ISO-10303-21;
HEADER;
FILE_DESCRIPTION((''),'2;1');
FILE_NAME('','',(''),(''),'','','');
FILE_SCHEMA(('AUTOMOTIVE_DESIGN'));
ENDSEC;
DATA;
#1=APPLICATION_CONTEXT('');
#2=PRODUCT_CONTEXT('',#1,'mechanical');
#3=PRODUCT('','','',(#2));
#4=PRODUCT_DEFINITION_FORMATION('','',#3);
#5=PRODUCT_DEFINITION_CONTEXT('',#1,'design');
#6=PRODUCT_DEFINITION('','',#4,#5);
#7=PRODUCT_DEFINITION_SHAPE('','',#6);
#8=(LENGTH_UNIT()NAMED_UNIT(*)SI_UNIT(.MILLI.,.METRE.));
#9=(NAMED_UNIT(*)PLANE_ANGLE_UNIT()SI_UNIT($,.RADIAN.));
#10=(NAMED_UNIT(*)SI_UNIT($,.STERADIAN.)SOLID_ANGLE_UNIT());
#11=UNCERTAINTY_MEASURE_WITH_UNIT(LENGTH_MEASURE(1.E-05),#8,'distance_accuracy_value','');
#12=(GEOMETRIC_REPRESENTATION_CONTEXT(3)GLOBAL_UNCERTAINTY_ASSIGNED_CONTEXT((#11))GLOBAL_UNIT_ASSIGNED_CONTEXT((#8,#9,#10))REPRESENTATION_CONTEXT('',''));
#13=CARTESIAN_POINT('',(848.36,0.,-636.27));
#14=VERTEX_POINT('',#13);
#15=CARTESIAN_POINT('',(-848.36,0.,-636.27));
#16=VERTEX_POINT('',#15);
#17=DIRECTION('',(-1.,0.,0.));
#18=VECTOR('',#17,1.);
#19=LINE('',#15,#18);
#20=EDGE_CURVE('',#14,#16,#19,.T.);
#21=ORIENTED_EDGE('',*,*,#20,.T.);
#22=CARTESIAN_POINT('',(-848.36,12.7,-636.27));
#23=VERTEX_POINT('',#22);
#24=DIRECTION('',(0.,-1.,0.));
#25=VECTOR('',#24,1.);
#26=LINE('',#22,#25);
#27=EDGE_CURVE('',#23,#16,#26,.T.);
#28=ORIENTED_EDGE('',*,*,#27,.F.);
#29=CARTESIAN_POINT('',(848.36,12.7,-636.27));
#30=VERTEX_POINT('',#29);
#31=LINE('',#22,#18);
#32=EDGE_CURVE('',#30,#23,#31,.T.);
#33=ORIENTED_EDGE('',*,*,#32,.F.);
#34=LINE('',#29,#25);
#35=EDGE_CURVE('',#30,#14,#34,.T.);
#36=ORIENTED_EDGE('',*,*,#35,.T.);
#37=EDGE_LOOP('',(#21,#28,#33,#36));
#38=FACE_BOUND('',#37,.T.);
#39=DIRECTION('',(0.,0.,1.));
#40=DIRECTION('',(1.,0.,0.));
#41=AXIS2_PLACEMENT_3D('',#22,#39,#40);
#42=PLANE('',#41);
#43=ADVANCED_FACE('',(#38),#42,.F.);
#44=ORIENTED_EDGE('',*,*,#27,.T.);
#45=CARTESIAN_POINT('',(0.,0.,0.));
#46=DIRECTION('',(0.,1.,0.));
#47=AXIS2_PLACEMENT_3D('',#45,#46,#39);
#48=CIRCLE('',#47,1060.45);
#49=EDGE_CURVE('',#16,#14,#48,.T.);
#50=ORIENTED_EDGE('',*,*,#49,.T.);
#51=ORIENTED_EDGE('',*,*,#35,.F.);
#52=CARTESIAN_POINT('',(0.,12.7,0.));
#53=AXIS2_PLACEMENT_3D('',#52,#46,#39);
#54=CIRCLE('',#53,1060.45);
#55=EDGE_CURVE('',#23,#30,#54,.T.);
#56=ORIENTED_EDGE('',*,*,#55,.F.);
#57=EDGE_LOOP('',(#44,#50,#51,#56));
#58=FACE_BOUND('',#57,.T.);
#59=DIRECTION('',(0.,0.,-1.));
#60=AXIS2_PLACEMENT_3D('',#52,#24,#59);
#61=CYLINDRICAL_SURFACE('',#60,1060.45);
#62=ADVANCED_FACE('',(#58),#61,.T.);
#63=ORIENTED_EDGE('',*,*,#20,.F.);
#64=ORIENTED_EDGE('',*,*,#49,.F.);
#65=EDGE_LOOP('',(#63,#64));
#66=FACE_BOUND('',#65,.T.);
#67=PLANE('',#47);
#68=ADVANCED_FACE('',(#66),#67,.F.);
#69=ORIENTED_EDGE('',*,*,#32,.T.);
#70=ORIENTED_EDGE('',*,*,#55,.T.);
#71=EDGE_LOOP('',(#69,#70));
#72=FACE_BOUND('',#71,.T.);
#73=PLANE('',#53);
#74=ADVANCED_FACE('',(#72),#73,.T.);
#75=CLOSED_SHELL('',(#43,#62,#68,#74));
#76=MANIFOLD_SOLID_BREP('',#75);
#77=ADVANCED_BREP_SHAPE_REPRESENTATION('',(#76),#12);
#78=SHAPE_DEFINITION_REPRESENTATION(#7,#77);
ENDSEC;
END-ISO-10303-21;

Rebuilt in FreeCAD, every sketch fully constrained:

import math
import FreeCAD as App
import Part
import Sketcher

V = App.Vector
Q = App.Units.Quantity

doc = App.newDocument("Part")
body = doc.addObject("PartDesign::Body", "Body")

# Sketch on XZ plane
sketch1 = doc.addObject("Sketcher::SketchObject", "Sketch")
body.addObject(sketch1)
sketch1.AttachmentSupport = (doc.XZ_Plane, [""])
sketch1.MapMode = "FlatFace"
sketch1.addGeometry([
    Part.LineSegment(V(848, -636, 0), V(-848, -636, 0)),
    Part.ArcOfCircle(Part.Circle(V(0, 0, 0), V(0, 0, 1), 1060), math.radians(-37), math.radians(217)),
], False)
sketch1.addConstraint([
    Sketcher.Constraint("Coincident", 0, 1, 1, 1),
    Sketcher.Constraint("Coincident", 1, 2, 0, 2),
    Sketcher.Constraint("Horizontal", 0),
    Sketcher.Constraint("Coincident", 1, 3, -1, 1),
    Sketcher.Constraint("Radius", 1, Q("41.75 in")),
    Sketcher.Constraint("DistanceX", 0, 2, 0, 1, Q("66.8 in")),
])
pad1 = doc.addObject("PartDesign::Pad", "Pad")
body.addObject(pad1)
pad1.Profile = sketch1
pad1.Length = Q("0.5 in")
pad1.Reversed = True

doc.recompute()
